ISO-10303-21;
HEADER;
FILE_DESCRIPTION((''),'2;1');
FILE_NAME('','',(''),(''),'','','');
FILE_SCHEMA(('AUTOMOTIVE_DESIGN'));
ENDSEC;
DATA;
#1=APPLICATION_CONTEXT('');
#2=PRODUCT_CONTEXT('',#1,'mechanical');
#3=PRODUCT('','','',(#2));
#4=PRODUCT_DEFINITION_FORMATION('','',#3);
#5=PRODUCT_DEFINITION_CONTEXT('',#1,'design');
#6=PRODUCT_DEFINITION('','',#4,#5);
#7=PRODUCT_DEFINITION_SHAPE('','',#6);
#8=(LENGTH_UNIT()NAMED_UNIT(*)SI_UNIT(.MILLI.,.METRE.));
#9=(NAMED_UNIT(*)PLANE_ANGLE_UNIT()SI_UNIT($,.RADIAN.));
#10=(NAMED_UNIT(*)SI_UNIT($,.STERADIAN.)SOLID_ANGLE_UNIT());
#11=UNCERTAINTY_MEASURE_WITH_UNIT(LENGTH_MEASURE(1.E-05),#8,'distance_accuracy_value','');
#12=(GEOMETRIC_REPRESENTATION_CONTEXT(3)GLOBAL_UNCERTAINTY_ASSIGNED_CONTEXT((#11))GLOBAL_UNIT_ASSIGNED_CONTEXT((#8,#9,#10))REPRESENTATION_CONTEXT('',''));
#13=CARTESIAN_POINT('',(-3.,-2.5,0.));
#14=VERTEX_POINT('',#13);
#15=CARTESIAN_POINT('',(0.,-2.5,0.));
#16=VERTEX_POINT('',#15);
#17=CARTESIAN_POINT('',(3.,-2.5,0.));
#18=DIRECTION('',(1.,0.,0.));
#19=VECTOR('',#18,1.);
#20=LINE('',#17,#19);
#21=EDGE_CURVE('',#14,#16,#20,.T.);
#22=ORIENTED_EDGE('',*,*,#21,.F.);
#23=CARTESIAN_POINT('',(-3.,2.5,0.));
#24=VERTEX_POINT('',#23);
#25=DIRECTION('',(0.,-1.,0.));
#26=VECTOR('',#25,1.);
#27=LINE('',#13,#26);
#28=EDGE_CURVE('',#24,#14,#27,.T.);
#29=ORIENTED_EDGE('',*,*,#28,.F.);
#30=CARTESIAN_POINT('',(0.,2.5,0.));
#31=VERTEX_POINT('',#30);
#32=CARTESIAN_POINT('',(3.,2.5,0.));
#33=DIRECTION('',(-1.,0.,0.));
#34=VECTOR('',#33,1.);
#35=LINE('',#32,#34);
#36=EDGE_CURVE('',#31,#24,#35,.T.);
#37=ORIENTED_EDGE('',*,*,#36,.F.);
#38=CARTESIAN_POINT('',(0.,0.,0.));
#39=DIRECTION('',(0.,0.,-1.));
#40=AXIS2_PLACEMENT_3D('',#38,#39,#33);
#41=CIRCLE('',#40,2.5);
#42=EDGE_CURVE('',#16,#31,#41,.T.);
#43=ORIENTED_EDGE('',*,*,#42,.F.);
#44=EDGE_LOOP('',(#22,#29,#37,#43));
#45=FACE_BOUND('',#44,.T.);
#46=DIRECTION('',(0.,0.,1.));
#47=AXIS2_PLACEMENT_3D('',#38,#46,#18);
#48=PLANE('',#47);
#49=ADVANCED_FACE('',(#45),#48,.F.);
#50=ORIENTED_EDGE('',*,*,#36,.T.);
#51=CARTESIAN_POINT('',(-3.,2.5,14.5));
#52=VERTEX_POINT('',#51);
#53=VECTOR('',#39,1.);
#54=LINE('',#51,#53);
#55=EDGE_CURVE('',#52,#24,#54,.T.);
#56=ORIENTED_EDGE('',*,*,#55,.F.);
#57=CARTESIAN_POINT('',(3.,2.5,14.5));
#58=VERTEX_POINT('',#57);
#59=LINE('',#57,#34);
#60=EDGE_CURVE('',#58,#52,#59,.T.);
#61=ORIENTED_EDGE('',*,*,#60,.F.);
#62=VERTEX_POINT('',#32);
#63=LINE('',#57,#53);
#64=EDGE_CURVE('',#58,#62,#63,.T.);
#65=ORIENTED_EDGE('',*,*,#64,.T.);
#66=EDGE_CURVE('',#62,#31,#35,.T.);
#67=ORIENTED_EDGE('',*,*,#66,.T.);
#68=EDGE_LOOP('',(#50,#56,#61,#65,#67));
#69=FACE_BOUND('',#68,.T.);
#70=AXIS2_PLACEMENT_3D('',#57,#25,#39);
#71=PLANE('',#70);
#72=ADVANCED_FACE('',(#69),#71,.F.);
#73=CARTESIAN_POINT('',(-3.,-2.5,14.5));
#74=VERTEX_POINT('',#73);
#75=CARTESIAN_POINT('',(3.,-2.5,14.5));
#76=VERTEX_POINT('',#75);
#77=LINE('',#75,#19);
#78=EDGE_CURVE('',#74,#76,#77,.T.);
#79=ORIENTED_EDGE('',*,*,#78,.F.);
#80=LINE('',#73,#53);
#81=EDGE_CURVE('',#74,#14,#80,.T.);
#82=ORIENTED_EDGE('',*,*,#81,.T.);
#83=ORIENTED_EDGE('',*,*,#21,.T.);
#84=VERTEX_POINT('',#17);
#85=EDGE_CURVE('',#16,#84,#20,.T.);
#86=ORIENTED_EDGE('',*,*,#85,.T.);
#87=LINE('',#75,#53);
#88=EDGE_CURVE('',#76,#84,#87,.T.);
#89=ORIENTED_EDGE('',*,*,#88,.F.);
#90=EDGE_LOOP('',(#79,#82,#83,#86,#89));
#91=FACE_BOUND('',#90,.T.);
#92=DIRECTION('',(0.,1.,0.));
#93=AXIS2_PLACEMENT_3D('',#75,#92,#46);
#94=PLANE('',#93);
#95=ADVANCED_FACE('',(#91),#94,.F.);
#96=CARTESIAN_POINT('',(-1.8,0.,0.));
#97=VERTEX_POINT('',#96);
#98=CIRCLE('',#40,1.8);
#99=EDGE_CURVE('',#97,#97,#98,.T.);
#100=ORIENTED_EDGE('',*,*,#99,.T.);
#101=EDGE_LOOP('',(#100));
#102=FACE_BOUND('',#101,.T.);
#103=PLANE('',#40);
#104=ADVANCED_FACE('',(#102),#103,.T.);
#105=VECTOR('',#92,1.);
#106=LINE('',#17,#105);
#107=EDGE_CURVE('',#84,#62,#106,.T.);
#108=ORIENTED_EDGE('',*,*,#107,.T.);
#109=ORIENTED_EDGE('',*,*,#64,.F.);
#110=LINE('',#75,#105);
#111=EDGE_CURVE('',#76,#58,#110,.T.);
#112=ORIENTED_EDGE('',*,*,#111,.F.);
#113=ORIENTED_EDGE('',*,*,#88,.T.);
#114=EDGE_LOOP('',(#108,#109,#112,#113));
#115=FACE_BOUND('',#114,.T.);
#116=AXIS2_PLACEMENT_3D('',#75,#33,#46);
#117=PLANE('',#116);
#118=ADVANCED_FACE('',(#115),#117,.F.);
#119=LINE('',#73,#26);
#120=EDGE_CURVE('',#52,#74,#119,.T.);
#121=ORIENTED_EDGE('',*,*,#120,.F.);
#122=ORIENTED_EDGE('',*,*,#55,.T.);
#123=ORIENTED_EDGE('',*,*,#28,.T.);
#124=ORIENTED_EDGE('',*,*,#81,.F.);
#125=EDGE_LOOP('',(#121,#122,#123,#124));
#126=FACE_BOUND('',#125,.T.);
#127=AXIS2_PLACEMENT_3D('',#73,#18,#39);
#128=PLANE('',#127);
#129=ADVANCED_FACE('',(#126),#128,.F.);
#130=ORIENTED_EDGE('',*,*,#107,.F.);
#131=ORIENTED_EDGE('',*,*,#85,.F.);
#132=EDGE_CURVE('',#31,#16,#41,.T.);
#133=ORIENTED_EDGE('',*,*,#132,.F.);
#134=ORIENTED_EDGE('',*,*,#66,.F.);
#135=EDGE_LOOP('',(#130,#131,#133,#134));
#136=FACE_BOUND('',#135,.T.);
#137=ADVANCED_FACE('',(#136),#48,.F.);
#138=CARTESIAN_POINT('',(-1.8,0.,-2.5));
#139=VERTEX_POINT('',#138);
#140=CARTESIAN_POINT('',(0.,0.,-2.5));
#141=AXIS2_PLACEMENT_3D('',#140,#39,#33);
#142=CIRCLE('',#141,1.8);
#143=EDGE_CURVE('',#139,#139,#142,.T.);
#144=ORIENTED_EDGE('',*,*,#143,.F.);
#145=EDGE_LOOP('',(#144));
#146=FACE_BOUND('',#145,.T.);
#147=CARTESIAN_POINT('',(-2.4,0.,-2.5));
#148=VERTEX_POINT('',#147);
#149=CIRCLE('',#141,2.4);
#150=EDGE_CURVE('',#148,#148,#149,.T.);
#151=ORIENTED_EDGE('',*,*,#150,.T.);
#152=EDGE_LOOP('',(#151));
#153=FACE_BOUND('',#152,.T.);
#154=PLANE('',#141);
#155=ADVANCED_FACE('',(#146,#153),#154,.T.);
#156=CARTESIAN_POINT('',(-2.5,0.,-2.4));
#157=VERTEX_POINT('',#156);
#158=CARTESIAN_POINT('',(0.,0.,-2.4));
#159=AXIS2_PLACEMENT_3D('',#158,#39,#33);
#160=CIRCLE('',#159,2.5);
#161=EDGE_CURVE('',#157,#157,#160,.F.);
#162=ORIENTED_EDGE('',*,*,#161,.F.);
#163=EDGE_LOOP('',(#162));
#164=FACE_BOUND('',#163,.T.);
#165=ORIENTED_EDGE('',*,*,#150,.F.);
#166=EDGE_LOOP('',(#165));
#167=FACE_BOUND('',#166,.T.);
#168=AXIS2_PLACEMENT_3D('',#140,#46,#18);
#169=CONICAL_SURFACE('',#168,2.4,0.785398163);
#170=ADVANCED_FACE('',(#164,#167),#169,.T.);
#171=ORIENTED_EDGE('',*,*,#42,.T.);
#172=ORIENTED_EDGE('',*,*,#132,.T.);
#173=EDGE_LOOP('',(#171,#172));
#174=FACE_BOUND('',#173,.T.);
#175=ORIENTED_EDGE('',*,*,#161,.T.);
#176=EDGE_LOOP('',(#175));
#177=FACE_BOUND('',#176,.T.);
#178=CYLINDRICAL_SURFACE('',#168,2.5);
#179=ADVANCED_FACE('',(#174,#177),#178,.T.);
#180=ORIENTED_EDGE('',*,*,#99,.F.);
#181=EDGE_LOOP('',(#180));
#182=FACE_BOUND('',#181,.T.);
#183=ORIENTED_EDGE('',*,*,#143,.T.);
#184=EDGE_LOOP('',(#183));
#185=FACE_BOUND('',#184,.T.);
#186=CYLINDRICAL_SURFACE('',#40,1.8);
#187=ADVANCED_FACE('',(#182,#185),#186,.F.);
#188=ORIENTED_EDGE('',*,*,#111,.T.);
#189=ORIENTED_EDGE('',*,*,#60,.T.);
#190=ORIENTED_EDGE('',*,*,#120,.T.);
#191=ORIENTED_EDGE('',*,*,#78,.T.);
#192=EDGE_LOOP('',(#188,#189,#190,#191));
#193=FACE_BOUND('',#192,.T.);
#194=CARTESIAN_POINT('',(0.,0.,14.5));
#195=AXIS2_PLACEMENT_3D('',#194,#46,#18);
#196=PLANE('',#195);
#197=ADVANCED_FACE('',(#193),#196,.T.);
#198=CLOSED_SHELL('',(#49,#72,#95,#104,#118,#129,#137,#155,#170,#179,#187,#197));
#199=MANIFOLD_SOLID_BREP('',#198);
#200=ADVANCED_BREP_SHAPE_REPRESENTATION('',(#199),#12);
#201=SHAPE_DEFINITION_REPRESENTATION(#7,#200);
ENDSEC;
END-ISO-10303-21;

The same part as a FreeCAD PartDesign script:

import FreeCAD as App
import Part
import Sketcher
Q = App.Units.Quantity


def edges_at(feature, points):
    """Names of the edges that pass closest to the given points."""
    edges = feature.Shape.Edges
    near = lambda p: min(range(len(edges)), key=lambda i: edges[i].distToShape(Part.Vertex(*p))[0])
    return sorted({f"Edge{near(p) + 1}" for p in points})

doc = App.newDocument("Part")
body = doc.addObject("PartDesign::Body", "Body")

sketch1 = body.newObject("Sketcher::SketchObject", "Sketch")
sketch1.AttachmentSupport = (doc.getObject("XY_Plane"), [""])
sketch1.MapMode = "FlatFace"
sketch1.addGeometry(Part.LineSegment(App.Vector(-3, 2.5, 0), App.Vector(-3, -2.5, 0)), False)
sketch1.addGeometry(Part.LineSegment(App.Vector(-3, -2.5, 0), App.Vector(3, -2.5, 0)), False)
sketch1.addGeometry(Part.LineSegment(App.Vector(3, -2.5, 0), App.Vector(3, 2.5, 0)), False)
sketch1.addGeometry(Part.LineSegment(App.Vector(3, 2.5, 0), App.Vector(-3, 2.5, 0)), False)
sketch1.addConstraint(Sketcher.Constraint("Coincident", 0, 2, 1, 1))
sketch1.addConstraint(Sketcher.Constraint("Coincident", 1, 2, 2, 1))
sketch1.addConstraint(Sketcher.Constraint("Coincident", 2, 2, 3, 1))
sketch1.addConstraint(Sketcher.Constraint("Coincident", 3, 2, 0, 1))
sketch1.addConstraint(Sketcher.Constraint("Vertical", 0))
sketch1.addConstraint(Sketcher.Constraint("Horizontal", 1))
sketch1.addConstraint(Sketcher.Constraint("Vertical", 2))
sketch1.addConstraint(Sketcher.Constraint("Horizontal", 3))
sketch1.addConstraint(Sketcher.Constraint("Symmetric", 0, 2, 2, 2, -1, 1))
sketch1.addConstraint(Sketcher.Constraint("DistanceX", 1, 1, 1, 2, Q("6 mm")))
sketch1.addConstraint(Sketcher.Constraint("DistanceY", 0, 2, 0, 1, Q("5 mm")))
pad1 = body.newObject("PartDesign::Pad", "Pad")
pad1.Profile = sketch1
pad1.Length = 14.5

sketch2 = body.newObject("Sketcher::SketchObject", "Sketch001")
sketch2.AttachmentSupport = (doc.getObject("XY_Plane"), [""])
sketch2.MapMode = "FlatFace"
sketch2.addGeometry(Part.Circle(App.Vector(0, 0, 0), App.Vector(0, 0, 1), 2.5), False)
sketch2.addConstraint(Sketcher.Constraint("Coincident", 0, 3, -1, 1))
sketch2.addConstraint(Sketcher.Constraint("Diameter", 0, Q("5 mm")))
pad2 = body.newObject("PartDesign::Pad", "Pad001")
pad2.Profile = sketch2
pad2.Length = 2.5
pad2.Reversed = True

sketch3 = body.newObject("Sketcher::SketchObject", "Sketch002")
sketch3.AttachmentSupport = (doc.getObject("XY_Plane"), [""])
sketch3.MapMode = "FlatFace"
sketch3.AttachmentOffset = App.Placement(App.Vector(0, 0, -2.5), App.Rotation())
sketch3.addGeometry(Part.Circle(App.Vector(0, 0, 0), App.Vector(0, 0, 1), 1.8), False)
sketch3.addConstraint(Sketcher.Constraint("Coincident", 0, 3, -1, 1))
sketch3.addConstraint(Sketcher.Constraint("Diameter", 0, Q("3.6 mm")))
pocket1 = body.newObject("PartDesign::Pocket", "Pocket")
pocket1.Profile = sketch3
pocket1.Length = 2.5
pocket1.Reversed = True
doc.recompute()

chamfer = body.newObject("PartDesign::Chamfer", "Chamfer")
chamfer.Base = (pocket1, edges_at(pocket1, [(0, 2.5, -2.5)]))
chamfer.Size = 0.1

doc.recompute()
